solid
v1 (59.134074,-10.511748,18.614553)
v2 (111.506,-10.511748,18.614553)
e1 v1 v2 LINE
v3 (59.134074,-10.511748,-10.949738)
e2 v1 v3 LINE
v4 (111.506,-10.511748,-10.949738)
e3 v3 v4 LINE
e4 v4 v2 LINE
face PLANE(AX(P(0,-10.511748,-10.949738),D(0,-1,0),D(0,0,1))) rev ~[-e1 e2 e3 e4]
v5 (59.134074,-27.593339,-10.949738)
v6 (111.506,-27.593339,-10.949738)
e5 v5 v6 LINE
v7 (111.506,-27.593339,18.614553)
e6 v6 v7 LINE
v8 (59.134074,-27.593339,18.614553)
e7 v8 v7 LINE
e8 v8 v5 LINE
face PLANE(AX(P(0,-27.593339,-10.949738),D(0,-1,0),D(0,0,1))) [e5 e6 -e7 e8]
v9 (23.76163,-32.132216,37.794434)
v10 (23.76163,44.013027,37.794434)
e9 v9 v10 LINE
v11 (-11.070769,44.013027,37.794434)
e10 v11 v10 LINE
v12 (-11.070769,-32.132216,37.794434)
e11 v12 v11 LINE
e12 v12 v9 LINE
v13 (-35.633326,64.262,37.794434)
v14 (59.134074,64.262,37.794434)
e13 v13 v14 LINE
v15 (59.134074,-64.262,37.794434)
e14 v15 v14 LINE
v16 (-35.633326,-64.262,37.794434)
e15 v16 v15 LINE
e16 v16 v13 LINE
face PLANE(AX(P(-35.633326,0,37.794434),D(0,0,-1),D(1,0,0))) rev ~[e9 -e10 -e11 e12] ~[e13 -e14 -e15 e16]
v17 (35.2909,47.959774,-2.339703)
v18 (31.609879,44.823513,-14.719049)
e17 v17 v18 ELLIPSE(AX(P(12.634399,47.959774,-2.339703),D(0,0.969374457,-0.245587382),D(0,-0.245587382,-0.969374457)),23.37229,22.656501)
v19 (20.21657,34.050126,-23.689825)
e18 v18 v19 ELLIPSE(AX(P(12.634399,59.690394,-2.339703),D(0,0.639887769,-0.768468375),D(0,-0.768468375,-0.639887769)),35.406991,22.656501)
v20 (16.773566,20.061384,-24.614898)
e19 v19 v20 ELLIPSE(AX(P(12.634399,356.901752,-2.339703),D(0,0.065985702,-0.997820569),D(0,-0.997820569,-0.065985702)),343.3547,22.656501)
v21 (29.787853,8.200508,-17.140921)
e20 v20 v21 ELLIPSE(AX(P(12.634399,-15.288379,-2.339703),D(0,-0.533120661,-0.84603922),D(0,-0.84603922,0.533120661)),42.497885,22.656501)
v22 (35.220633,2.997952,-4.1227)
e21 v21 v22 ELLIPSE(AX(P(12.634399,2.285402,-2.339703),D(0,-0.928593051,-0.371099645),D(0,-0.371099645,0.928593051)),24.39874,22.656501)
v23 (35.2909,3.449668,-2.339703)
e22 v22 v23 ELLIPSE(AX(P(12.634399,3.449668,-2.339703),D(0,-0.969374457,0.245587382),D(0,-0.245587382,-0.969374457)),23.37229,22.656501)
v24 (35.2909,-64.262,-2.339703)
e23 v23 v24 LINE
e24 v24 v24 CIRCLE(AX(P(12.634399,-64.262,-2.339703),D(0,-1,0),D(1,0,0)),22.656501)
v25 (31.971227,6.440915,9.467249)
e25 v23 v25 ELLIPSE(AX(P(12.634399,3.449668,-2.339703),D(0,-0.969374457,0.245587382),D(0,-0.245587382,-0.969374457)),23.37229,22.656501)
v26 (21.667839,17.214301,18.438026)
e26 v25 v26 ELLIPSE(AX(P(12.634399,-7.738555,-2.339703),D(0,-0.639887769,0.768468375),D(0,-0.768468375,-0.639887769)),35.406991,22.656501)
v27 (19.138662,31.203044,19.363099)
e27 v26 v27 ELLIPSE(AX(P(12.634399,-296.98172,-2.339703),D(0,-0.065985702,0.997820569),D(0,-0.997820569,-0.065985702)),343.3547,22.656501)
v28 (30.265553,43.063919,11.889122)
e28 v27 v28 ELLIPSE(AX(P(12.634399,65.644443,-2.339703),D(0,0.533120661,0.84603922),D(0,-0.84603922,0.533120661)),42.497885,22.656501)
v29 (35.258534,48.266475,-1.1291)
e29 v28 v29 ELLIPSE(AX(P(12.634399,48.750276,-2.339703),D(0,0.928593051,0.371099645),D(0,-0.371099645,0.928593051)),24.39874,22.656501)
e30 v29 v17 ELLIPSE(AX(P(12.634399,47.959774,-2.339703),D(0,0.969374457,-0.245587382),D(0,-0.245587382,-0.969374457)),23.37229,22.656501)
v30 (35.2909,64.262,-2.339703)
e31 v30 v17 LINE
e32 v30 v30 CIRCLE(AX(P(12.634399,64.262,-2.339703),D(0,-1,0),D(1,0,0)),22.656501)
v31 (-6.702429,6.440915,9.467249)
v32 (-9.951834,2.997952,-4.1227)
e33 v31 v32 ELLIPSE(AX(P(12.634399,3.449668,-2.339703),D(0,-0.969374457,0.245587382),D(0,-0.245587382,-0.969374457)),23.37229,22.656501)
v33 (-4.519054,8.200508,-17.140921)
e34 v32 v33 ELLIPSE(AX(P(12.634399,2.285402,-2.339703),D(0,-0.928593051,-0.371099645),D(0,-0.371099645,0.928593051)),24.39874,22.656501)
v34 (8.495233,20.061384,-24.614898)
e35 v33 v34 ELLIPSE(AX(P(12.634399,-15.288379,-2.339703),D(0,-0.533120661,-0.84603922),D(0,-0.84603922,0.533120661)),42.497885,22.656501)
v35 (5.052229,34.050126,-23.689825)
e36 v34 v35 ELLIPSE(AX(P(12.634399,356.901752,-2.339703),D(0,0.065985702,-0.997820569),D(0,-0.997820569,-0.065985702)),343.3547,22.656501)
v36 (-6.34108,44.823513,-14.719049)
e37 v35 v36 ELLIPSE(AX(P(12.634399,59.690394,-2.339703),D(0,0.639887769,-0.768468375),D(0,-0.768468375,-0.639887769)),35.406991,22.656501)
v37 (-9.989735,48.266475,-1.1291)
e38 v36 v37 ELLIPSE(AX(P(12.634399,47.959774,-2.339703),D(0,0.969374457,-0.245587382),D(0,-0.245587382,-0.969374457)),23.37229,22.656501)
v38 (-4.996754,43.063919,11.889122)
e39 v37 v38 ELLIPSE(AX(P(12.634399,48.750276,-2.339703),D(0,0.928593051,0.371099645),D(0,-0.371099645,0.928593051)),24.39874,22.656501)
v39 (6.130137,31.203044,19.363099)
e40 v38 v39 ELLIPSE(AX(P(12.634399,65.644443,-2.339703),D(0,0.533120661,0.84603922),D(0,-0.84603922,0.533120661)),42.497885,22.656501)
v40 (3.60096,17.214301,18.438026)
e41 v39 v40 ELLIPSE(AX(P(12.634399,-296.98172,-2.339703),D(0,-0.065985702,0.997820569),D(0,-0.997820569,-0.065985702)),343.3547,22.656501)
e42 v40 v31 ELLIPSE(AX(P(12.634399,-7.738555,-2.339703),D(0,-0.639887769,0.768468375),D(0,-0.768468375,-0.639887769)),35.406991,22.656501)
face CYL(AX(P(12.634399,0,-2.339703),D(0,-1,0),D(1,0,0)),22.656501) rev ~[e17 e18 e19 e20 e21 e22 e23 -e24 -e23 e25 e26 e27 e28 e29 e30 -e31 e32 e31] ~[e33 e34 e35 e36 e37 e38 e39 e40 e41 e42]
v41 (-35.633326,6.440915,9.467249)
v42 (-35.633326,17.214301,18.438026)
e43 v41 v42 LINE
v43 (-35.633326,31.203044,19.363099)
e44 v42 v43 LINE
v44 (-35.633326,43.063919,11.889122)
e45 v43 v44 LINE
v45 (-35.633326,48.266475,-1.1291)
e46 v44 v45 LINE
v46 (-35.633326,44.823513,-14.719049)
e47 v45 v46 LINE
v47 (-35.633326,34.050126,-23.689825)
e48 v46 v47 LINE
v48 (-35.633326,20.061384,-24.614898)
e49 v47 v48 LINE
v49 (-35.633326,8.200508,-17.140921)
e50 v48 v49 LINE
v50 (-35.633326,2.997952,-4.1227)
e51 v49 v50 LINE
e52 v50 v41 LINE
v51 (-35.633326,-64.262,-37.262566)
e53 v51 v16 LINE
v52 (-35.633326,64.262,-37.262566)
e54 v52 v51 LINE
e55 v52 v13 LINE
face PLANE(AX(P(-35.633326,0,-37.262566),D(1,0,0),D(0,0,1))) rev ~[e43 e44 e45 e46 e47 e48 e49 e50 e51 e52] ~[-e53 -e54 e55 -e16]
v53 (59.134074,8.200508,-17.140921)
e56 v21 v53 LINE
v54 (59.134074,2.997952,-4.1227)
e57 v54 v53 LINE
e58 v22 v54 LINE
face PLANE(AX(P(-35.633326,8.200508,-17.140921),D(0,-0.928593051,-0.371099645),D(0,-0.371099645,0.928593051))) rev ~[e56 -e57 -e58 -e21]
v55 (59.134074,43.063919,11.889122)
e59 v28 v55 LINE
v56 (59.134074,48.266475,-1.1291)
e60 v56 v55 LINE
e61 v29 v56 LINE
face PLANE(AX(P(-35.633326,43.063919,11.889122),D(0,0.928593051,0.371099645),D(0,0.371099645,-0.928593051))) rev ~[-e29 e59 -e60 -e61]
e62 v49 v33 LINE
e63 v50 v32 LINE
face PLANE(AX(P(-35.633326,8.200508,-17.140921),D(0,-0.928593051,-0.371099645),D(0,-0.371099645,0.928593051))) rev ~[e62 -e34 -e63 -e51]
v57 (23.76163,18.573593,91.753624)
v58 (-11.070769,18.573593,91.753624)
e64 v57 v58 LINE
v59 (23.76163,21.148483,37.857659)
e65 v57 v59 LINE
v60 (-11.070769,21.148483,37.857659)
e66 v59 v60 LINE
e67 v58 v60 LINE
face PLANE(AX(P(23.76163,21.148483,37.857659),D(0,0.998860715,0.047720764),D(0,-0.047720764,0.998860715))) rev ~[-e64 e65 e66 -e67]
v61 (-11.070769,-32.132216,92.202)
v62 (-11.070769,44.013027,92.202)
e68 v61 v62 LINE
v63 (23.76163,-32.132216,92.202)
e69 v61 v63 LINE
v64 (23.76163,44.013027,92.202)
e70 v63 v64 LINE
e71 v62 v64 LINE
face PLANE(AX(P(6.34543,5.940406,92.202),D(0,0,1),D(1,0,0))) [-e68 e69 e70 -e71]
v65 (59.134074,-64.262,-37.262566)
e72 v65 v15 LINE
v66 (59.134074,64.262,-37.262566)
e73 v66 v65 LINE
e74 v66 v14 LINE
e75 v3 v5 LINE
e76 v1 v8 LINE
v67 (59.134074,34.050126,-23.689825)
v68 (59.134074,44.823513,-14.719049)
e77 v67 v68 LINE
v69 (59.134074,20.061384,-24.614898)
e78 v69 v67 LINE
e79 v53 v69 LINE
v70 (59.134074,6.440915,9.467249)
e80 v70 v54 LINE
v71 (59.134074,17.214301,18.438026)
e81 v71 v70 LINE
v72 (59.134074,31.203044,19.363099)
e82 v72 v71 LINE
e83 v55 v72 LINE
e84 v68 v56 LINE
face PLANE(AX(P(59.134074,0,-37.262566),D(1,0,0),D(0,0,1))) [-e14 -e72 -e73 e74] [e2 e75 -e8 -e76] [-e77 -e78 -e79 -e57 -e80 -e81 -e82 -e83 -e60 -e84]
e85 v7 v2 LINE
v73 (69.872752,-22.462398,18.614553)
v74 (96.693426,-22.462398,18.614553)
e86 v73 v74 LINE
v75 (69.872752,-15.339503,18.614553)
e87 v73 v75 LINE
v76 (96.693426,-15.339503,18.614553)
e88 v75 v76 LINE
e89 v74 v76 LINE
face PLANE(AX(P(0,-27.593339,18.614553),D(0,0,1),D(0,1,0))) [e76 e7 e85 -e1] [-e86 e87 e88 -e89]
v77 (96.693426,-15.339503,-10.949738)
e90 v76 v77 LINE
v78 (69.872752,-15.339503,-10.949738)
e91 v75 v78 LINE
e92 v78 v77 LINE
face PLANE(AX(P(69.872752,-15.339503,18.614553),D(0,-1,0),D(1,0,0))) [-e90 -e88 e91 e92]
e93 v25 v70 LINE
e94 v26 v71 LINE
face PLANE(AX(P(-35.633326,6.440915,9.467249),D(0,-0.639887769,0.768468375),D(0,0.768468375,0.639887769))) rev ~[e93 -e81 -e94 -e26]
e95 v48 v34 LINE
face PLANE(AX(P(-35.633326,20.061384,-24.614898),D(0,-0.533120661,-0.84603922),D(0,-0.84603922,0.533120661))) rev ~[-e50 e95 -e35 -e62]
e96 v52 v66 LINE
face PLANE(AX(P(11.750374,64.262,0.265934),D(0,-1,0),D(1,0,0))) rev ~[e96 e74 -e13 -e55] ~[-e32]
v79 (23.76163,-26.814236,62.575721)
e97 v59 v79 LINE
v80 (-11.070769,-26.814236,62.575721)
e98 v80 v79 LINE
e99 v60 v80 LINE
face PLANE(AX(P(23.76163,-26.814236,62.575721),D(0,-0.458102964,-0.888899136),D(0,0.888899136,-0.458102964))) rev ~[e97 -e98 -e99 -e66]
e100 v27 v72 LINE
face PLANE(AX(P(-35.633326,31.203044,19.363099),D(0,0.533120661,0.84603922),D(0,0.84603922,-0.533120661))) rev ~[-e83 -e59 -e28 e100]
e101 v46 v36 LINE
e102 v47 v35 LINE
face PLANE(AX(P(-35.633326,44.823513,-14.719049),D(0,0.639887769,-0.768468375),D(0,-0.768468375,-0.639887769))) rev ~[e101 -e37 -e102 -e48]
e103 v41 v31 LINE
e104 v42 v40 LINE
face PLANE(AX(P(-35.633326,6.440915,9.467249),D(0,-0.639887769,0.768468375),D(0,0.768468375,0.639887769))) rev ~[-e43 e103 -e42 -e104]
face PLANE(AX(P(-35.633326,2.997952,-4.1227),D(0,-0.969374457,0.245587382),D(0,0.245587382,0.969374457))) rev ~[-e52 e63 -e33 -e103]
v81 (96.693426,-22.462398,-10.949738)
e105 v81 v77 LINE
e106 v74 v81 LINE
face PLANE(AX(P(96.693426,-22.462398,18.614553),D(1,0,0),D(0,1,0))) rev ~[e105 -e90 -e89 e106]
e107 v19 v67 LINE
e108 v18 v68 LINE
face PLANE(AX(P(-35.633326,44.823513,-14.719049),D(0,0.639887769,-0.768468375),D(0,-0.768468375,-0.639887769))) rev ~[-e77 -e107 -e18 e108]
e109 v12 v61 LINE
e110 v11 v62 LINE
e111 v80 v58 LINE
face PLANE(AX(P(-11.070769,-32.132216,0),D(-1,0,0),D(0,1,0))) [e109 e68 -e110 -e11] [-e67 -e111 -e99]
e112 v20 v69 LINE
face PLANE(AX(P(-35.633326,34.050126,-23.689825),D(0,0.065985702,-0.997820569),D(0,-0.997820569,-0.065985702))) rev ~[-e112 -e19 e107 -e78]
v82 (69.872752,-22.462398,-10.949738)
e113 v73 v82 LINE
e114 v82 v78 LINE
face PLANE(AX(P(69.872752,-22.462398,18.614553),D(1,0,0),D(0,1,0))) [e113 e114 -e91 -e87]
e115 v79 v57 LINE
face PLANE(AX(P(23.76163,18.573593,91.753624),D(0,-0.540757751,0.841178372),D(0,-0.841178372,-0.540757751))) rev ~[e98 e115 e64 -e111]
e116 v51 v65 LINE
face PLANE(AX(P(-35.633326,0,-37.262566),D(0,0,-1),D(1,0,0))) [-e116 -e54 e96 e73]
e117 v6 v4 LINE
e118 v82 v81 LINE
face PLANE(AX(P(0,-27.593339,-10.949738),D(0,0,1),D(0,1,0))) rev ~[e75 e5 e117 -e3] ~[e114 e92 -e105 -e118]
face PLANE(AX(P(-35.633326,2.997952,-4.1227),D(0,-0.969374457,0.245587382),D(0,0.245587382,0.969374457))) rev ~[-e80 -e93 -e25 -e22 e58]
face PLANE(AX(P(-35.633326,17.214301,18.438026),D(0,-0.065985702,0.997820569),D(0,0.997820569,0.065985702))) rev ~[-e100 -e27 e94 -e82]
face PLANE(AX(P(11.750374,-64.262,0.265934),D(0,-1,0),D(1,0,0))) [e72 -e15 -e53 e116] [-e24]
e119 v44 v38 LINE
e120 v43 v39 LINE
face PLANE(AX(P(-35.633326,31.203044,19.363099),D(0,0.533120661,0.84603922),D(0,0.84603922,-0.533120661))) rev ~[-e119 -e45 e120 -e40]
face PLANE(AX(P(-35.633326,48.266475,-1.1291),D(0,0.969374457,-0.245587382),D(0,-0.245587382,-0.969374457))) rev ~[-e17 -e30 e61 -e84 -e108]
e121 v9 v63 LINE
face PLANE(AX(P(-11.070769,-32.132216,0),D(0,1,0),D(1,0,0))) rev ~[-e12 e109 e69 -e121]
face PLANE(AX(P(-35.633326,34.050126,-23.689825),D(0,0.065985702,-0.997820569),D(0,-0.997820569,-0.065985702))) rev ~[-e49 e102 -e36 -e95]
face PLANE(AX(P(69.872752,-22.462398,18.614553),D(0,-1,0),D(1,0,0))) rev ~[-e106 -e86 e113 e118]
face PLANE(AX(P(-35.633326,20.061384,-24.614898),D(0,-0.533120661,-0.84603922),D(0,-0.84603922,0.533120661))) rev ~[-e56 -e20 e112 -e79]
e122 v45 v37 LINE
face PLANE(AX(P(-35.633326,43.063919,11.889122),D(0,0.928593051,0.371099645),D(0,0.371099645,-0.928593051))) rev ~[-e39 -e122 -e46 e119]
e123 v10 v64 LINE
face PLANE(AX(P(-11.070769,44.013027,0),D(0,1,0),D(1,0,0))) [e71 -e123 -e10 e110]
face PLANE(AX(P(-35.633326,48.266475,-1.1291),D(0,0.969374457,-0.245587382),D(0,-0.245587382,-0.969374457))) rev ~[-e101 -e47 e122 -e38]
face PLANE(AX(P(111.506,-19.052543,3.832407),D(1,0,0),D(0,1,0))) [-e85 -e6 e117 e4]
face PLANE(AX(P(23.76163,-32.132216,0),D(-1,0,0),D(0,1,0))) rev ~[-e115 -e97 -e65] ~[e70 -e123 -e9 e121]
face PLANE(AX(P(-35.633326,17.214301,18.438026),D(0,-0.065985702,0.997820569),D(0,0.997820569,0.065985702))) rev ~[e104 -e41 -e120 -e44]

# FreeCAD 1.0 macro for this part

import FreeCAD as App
import Part
import Sketcher

V = App.Vector
Q = App.Units.Quantity

doc = App.newDocument("Part")
body = doc.addObject("PartDesign::Body", "Body")

sketch1 = doc.addObject("Sketcher::SketchObject", "Sketch")
body.addObject(sketch1)
sketch1.AttachmentSupport = (doc.XZ_Plane, [""])
sketch1.MapMode = "FlatFace"
sketch1.addGeometry([
    Part.LineSegment(V(-36, 38, 0), V(-36, -37, 0)),
    Part.LineSegment(V(-36, -37, 0), V(59, -37, 0)),
    Part.LineSegment(V(59, -37, 0), V(59, 38, 0)),
    Part.LineSegment(V(59, 38, 0), V(-36, 38, 0)),
], False)
sketch1.addConstraint([
    Sketcher.Constraint("Coincident", 0, 2, 1, 1),
    Sketcher.Constraint("Coincident", 1, 2, 2, 1),
    Sketcher.Constraint("Coincident", 2, 2, 3, 1),
    Sketcher.Constraint("Coincident", 3, 2, 0, 1),
    Sketcher.Constraint("Vertical", 0),
    Sketcher.Constraint("Horizontal", 1),
    Sketcher.Constraint("Vertical", 2),
    Sketcher.Constraint("Horizontal", 3),
    Sketcher.Constraint("DistanceX", 1, 1, 1, 2, Q("3.731 in")),
    Sketcher.Constraint("DistanceY", 0, 2, 0, 1, Q("2.955 in")),
    Sketcher.Constraint("DistanceX", 0, 2, -1, 1, 35.633326),
    Sketcher.Constraint("DistanceY", 0, 2, -1, 1, 37.262566),
])
pad1 = doc.addObject("PartDesign::Pad", "Pad")
body.addObject(pad1)
pad1.Profile = sketch1
pad1.Length = Q("5.06 in")
pad1.Midplane = True

sketch2 = doc.addObject("Sketcher::SketchObject", "Sketch001")
body.addObject(sketch2)
sketch2.AttachmentSupport = (doc.XY_Plane, [""])
sketch2.MapMode = "FlatFace"
sketch2.addGeometry([
    Part.LineSegment(V(-11, 44, 0), V(-11, -32, 0)),
    Part.LineSegment(V(-11, -32, 0), V(24, -32, 0)),
    Part.LineSegment(V(24, -32, 0), V(24, 44, 0)),
    Part.LineSegment(V(24, 44, 0), V(-11, 44, 0)),
], False)
sketch2.addConstraint([
    Sketcher.Constraint("Coincident", 0, 2, 1, 1),
    Sketcher.Constraint("Coincident", 1, 2, 2, 1),
    Sketcher.Constraint("Coincident", 2, 2, 3, 1),
    Sketcher.Constraint("Coincident", 3, 2, 0, 1),
    Sketcher.Constraint("Vertical", 0),
    Sketcher.Constraint("Horizontal", 1),
    Sketcher.Constraint("Vertical", 2),
    Sketcher.Constraint("Horizontal", 3),
    Sketcher.Constraint("DistanceX", 1, 1, 1, 2, 34.832399),
    Sketcher.Constraint("DistanceY", 0, 2, 0, 1, 76.145243),
    Sketcher.Constraint("DistanceX", 0, 2, -1, 1, 11.070769),
    Sketcher.Constraint("DistanceY", 0, 2, -1, 1, 32.132216),
])
pad2 = doc.addObject("PartDesign::Pad", "Pad001")
body.addObject(pad2)
pad2.Profile = sketch2
pad2.Length = Q("3.63 in")

sketch3 = doc.addObject("Sketcher::SketchObject", "Sketch002")
body.addObject(sketch3)
sketch3.AttachmentSupport = (doc.YZ_Plane, [""])
sketch3.MapMode = "FlatFace"
sketch3.addGeometry([
    Part.LineSegment(V(-28, 19, 0), V(-28, -11, 0)),
    Part.LineSegment(V(-28, -11, 0), V(-11, -11, 0)),
    Part.LineSegment(V(-11, -11, 0), V(-11, 19, 0)),
    Part.LineSegment(V(-11, 19, 0), V(-28, 19, 0)),
], False)
sketch3.addConstraint([
    Sketcher.Constraint("Coincident", 0, 2, 1, 1),
    Sketcher.Constraint("Coincident", 1, 2, 2, 1),
    Sketcher.Constraint("Coincident", 2, 2, 3, 1),
    Sketcher.Constraint("Coincident", 3, 2, 0, 1),
    Sketcher.Constraint("Vertical", 0),
    Sketcher.Constraint("Horizontal", 1),
    Sketcher.Constraint("Vertical", 2),
    Sketcher.Constraint("Horizontal", 3),
    Sketcher.Constraint("DistanceX", 1, 1, 1, 2, 17.081591),
    Sketcher.Constraint("DistanceY", 0, 2, 0, 1, 29.564291),
    Sketcher.Constraint("DistanceX", 0, 2, -1, 1, 27.593339),
    Sketcher.Constraint("DistanceY", 0, 2, -1, 1, 10.949738),
])
pad3 = doc.addObject("PartDesign::Pad", "Pad002")
body.addObject(pad3)
pad3.Profile = sketch3
pad3.Length = Q("4.39 in")

sketch4 = doc.addObject("Sketcher::SketchObject", "Sketch003")
body.addObject(sketch4)
sketch4.AttachmentSupport = (doc.XY_Plane, [""])
sketch4.MapMode = "FlatFace"
sketch4.AttachmentOffset = App.Placement(V(0, 0, 18.614553), App.Rotation())
sketch4.addGeometry([
    Part.LineSegment(V(70, -15, 0), V(70, -22, 0)),
    Part.LineSegment(V(70, -22, 0), V(97, -22, 0)),
    Part.LineSegment(V(97, -22, 0), V(97, -15, 0)),
    Part.LineSegment(V(97, -15, 0), V(70, -15, 0)),
], False)
sketch4.addConstraint([
    Sketcher.Constraint("Coincident", 0, 2, 1, 1),
    Sketcher.Constraint("Coincident", 1, 2, 2, 1),
    Sketcher.Constraint("Coincident", 2, 2, 3, 1),
    Sketcher.Constraint("Coincident", 3, 2, 0, 1),
    Sketcher.Constraint("Vertical", 0),
    Sketcher.Constraint("Horizontal", 1),
    Sketcher.Constraint("Vertical", 2),
    Sketcher.Constraint("Horizontal", 3),
    Sketcher.Constraint("DistanceX", 1, 1, 1, 2, 26.820675),
    Sketcher.Constraint("DistanceY", 0, 2, 0, 1, 7.122895),
    Sketcher.Constraint("DistanceX", -1, 1, 0, 2, 69.872752),
    Sketcher.Constraint("DistanceY", 0, 2, -1, 1, 22.462398),
])
pocket1 = doc.addObject("PartDesign::Pocket", "Pocket")
body.addObject(pocket1)
pocket1.Profile = sketch4
pocket1.Length = Q("4.621 in")

sketch5 = doc.addObject("Sketcher::SketchObject", "Sketch004")
body.addObject(sketch5)
sketch5.AttachmentSupport = (doc.XZ_Plane, [""])
sketch5.MapMode = "FlatFace"
sketch5.addGeometry(Part.Circle(V(13, -2, 0), V(0, 0, 1), 23), False)
sketch5.addConstraint([
    Sketcher.Constraint("Diameter", 0, 45.313002),
    Sketcher.Constraint("DistanceX", -1, 1, 0, 3, 12.634399),
    Sketcher.Constraint("DistanceY", 0, 3, -1, 1, 2.339703),
])
pocket2 = doc.addObject("PartDesign::Pocket", "Pocket001")
body.addObject(pocket2)
pocket2.Profile = sketch5
pocket2.Length = Q("9.02 in")
pocket2.Midplane = True

sketch6 = doc.addObject("Sketcher::SketchObject", "Sketch005")
body.addObject(sketch6)
sketch6.AttachmentSupport = (doc.YZ_Plane, [""])
sketch6.MapMode = "FlatFace"
sketch6.AttachmentOffset = App.Placement(V(0, 0, 23.76163), App.Rotation())
sketch6.addGeometry([
    Part.LineSegment(V(19, 92, 0), V(-27, 63, 0)),
    Part.LineSegment(V(-27, 63, 0), V(21, 38, 0)),
    Part.LineSegment(V(21, 38, 0), V(19, 92, 0)),
], False)
sketch6.addConstraint([
    Sketcher.Constraint("Coincident", 0, 2, 1, 1),
    Sketcher.Constraint("Coincident", 1, 2, 2, 1),
    Sketcher.Constraint("Coincident", 2, 2, 0, 1),
    Sketcher.Constraint("Equal", 0, 1),
    Sketcher.Constraint("Equal", 1, 2),
    Sketcher.Constraint("DistanceY", -1, 1, 0, 2, 62.575721),
    Sketcher.Constraint("DistanceY", -1, 1, 1, 2, 37.857659),
    Sketcher.Constraint("DistanceX", 0, 2, 1, 2, 47.962719),
    Sketcher.Constraint("DistanceX", 0, 2, -1, 1, 26.814236),
])
pocket3 = doc.addObject("PartDesign::Pocket", "Pocket002")
body.addObject(pocket3)
pocket3.Profile = sketch6
pocket3.Length = Q("5.78 in")
pocket3.Midplane = True

sketch7 = doc.addObject("Sketcher::SketchObject", "Sketch006")
body.addObject(sketch7)
sketch7.AttachmentSupport = (doc.YZ_Plane, [""])
sketch7.MapMode = "FlatFace"
sketch7.AttachmentOffset = App.Placement(V(0, 0, -35.633326), App.Rotation())
sketch7.addGeometry([
    Part.LineSegment(V(3, -4, 0), V(6, 9, 0)),
    Part.LineSegment(V(6, 9, 0), V(17, 18, 0)),
    Part.LineSegment(V(17, 18, 0), V(31, 19, 0)),
    Part.LineSegment(V(31, 19, 0), V(43, 12, 0)),
    Part.LineSegment(V(43, 12, 0), V(48, -1, 0)),
    Part.LineSegment(V(48, -1, 0), V(45, -15, 0)),
    Part.LineSegment(V(45, -15, 0), V(34, -24, 0)),
    Part.LineSegment(V(34, -24, 0), V(20, -25, 0)),
    Part.LineSegment(V(20, -25, 0), V(8, -17, 0)),
    Part.LineSegment(V(8, -17, 0), V(3, -4, 0)),
], False)
sketch7.addConstraint([
    Sketcher.Constraint("Coincident", 0, 2, 1, 1),
    Sketcher.Constraint("Coincident", 1, 2, 2, 1),
    Sketcher.Constraint("Coincident", 2, 2, 3, 1),
    Sketcher.Constraint("Coincident", 3, 2, 4, 1),
    Sketcher.Constraint("Coincident", 4, 2, 5, 1),
    Sketcher.Constraint("Coincident", 5, 2, 6, 1),
    Sketcher.Constraint("Coincident", 6, 2, 7, 1),
    Sketcher.Constraint("Coincident", 7, 2, 8, 1),
    Sketcher.Constraint("Coincident", 8, 2, 9, 1),
    Sketcher.Constraint("Coincident", 9, 2, 0, 1),
    Sketcher.Constraint("Parallel", 0, 5),
    Sketcher.Constraint("Parallel", 1, 6),
    Sketcher.Constraint("Parallel", 2, 7),
    Sketcher.Constraint("Parallel", 3, 8),
    Sketcher.Constraint("Parallel", 4, 9),
    Sketcher.Constraint("Equal", 0, 1),
    Sketcher.Constraint("Equal", 1, 2),
    Sketcher.Constraint("Equal", 2, 3),
    Sketcher.Constraint("Equal", 3, 4),
    Sketcher.Constraint("Equal", 4, 5),
    Sketcher.Constraint("Equal", 5, 6),
    Sketcher.Constraint("Equal", 6, 7),
    Sketcher.Constraint("DistanceX", -1, 1, 1, 2, 17.214301),
    Sketcher.Constraint("DistanceY", -1, 1, 2, 2, 19.363099),
    Sketcher.Constraint("DistanceY", 4, 2, -1, 1, 1.1291),
    Sketcher.Constraint("DistanceY", 7, 2, -1, 1, 24.614898),
    Sketcher.Constraint("DistanceX", 0, 2, 5, 2, 38.382598),
    Sketcher.Constraint("DistanceY", -1, 1, 0, 2, 9.467249),
    Sketcher.Constraint("DistanceX", -1, 1, 3, 2, 43.063919),
    Sketcher.Constraint("DistanceY", -1, 1, 3, 2, 11.889122),
])
pocket4 = doc.addObject("PartDesign::Pocket", "Pocket003")
body.addObject(pocket4)
pocket4.Profile = sketch7
pocket4.Length = Q("5.96 in")
pocket4.Reversed = True

doc.recompute()
